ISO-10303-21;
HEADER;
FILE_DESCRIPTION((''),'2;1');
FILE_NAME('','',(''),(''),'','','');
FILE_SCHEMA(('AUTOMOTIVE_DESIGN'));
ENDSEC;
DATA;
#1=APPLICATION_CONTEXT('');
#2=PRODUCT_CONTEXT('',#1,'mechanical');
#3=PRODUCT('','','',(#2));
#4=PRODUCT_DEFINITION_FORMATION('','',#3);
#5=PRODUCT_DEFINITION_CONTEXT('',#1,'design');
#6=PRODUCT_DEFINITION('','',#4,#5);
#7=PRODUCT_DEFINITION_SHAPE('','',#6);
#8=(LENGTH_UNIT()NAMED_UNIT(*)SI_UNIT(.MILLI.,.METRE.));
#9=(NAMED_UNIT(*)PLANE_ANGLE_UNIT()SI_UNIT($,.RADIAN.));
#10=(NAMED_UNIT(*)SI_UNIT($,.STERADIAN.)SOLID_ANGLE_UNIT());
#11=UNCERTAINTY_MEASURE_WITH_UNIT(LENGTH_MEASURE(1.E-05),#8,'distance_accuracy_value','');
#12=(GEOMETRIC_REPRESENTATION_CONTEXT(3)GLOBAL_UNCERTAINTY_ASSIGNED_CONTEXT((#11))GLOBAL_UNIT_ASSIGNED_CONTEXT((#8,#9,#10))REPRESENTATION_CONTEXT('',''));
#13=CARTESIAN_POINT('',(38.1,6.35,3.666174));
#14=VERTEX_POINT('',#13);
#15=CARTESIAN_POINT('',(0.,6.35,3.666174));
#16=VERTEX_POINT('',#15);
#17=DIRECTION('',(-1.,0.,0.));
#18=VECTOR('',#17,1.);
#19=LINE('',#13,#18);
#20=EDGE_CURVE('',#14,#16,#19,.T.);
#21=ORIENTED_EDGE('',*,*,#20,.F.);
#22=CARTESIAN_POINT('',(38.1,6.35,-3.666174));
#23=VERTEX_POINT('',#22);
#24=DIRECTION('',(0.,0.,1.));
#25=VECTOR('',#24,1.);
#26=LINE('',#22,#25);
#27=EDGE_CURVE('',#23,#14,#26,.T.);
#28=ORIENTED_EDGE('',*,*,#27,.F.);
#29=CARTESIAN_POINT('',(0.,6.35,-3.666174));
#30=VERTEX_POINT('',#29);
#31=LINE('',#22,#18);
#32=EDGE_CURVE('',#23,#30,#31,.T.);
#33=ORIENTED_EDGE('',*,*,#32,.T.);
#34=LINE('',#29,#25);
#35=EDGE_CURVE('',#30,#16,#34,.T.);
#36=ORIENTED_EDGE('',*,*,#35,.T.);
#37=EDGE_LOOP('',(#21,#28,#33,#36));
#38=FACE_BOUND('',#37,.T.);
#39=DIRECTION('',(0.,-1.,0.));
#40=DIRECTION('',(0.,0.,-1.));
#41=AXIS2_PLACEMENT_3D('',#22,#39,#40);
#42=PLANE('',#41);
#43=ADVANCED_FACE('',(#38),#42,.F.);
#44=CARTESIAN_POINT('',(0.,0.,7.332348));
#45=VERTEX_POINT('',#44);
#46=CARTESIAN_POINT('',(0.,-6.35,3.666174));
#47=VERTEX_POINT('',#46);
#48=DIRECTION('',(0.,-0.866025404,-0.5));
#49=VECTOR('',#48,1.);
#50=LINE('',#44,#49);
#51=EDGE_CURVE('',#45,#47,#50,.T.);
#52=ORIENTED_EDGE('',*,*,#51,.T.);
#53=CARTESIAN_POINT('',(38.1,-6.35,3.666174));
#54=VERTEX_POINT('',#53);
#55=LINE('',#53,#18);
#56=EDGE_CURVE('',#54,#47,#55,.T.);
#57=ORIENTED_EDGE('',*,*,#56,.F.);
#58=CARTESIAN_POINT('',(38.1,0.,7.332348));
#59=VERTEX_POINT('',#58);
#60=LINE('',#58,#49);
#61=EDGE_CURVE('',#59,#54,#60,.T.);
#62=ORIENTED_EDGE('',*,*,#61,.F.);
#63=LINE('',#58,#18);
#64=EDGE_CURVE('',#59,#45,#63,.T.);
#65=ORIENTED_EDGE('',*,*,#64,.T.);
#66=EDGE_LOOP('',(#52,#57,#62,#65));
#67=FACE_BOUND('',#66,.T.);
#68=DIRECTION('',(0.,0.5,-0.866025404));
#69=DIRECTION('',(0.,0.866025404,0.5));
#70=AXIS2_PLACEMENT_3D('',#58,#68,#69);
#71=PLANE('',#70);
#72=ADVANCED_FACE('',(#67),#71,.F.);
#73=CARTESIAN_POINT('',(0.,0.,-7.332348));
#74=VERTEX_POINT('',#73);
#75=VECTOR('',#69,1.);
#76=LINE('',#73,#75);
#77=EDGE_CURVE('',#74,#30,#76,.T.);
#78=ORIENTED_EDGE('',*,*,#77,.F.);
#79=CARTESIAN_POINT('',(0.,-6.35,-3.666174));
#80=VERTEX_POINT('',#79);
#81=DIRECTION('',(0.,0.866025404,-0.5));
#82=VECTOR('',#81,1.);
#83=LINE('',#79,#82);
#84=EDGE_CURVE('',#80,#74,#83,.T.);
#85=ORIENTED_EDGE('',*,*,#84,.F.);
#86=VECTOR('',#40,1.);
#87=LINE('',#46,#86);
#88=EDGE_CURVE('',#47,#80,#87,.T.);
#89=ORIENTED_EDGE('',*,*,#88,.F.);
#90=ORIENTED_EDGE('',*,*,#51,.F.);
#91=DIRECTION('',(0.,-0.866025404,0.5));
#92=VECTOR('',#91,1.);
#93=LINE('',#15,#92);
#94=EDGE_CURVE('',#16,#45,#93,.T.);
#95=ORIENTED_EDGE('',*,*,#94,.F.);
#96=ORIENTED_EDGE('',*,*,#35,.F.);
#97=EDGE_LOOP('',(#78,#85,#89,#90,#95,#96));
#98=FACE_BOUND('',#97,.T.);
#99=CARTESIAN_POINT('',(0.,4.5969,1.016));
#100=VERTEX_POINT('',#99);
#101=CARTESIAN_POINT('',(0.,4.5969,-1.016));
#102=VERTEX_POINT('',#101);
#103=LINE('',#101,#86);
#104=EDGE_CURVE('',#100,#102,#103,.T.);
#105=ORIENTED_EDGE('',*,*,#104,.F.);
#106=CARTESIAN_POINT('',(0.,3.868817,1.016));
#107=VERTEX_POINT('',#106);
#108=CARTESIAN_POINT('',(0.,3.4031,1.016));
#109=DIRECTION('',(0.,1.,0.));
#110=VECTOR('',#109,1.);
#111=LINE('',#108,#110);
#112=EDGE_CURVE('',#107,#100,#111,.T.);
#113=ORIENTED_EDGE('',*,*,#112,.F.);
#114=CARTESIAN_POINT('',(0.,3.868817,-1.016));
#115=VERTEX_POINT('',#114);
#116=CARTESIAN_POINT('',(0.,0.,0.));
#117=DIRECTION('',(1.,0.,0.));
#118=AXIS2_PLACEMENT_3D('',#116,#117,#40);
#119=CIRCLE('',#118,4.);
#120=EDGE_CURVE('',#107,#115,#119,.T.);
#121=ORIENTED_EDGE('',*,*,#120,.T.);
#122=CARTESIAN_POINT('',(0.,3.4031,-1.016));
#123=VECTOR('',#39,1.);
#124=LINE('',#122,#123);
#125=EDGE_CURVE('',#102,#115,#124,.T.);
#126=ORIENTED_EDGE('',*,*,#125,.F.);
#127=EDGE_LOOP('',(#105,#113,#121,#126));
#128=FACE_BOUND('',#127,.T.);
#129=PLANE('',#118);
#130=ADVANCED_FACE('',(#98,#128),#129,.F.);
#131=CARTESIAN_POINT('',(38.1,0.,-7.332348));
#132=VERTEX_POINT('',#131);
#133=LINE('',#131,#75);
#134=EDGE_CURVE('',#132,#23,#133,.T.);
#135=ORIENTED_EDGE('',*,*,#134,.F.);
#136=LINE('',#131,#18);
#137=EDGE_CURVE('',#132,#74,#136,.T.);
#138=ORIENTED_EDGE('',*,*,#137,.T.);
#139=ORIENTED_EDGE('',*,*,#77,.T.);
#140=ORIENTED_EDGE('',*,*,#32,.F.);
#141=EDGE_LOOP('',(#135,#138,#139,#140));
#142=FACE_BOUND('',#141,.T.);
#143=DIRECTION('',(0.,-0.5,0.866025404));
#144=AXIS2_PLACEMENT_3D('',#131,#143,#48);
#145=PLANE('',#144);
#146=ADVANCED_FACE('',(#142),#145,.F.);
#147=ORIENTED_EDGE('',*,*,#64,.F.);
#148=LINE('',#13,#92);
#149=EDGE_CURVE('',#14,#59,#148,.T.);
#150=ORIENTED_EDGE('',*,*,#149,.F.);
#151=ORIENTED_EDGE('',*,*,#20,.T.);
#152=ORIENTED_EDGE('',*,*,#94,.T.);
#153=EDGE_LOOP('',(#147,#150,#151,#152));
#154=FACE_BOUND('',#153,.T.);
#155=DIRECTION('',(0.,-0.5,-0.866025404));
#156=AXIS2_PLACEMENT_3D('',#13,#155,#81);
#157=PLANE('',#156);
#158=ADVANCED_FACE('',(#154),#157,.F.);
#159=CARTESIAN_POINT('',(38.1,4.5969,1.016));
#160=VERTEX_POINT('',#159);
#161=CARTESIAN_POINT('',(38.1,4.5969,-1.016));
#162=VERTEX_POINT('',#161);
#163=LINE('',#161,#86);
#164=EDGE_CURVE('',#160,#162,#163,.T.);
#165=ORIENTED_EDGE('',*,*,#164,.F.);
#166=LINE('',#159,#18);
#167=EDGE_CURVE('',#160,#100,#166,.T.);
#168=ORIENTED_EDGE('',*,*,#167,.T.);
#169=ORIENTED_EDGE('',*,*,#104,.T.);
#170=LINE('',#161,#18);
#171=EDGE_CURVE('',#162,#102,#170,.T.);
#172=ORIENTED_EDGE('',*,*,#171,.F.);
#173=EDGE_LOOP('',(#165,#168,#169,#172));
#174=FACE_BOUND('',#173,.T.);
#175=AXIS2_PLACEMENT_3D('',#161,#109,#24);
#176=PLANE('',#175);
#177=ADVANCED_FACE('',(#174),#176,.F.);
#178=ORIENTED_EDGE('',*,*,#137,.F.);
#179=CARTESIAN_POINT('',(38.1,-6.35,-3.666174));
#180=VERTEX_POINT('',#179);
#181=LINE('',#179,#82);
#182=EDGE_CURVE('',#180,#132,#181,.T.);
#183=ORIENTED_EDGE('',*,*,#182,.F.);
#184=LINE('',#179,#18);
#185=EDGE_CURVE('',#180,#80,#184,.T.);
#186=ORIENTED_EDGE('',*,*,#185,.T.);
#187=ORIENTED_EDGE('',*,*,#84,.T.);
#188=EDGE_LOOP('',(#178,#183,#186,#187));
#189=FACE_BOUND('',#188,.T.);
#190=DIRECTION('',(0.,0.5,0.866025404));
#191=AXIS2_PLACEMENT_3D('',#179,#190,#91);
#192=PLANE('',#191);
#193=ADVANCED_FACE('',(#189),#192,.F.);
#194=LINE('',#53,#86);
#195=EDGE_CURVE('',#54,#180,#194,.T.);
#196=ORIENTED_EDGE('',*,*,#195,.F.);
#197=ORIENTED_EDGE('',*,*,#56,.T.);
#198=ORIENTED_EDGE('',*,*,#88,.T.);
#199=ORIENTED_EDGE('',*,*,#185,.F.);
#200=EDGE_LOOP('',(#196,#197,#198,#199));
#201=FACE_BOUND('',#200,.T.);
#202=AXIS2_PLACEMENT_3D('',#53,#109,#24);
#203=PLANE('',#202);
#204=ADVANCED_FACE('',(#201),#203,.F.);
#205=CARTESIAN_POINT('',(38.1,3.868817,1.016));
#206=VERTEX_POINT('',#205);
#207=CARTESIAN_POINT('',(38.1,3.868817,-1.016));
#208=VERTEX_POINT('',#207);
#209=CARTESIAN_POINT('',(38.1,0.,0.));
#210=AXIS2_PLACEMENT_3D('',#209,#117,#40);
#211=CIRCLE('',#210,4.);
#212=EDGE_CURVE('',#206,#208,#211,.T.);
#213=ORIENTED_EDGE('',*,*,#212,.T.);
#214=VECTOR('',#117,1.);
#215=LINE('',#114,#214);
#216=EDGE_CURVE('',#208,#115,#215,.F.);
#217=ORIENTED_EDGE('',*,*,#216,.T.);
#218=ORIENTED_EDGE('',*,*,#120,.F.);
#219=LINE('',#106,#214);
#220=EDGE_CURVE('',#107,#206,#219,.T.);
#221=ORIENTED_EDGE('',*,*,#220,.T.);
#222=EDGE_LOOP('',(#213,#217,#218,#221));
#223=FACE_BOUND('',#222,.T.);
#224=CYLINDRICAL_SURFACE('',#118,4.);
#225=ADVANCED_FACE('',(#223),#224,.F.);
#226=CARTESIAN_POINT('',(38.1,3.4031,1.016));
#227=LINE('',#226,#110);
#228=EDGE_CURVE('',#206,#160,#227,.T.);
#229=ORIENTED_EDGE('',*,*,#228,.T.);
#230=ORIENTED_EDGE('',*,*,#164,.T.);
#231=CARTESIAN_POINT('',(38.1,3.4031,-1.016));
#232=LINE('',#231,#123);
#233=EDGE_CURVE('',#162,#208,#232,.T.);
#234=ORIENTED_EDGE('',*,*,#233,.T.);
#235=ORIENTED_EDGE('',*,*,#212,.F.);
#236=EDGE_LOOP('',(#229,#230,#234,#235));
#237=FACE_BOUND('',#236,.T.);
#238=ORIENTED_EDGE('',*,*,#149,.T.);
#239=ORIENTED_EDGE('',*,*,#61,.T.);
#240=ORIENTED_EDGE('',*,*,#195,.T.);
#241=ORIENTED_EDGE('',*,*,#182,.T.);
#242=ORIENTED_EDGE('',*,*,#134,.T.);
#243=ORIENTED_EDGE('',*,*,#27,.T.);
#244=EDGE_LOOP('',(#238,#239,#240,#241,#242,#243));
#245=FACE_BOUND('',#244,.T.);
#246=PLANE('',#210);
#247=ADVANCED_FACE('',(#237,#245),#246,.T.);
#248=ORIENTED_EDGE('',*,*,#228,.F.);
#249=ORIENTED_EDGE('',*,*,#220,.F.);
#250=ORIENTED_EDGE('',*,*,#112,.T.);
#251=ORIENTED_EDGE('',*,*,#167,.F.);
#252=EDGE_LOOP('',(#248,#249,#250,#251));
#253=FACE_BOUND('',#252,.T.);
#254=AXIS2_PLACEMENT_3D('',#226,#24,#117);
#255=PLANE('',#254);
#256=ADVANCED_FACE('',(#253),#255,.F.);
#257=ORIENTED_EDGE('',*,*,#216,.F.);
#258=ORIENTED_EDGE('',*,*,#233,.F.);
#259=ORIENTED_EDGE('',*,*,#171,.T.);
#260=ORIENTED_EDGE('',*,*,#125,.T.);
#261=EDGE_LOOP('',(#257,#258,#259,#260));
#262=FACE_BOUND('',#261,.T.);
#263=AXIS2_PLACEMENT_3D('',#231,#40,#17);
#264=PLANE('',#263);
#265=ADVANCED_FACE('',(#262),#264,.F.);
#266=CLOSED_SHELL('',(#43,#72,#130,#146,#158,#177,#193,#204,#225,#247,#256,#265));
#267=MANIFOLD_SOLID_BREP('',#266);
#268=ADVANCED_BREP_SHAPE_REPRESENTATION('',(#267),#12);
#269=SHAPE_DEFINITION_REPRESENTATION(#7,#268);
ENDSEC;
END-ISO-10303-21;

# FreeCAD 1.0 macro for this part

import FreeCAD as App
import Part
import Sketcher
Q = App.Units.Quantity


def add_polygon(sketch, points):
    """Adds a closed chain of lines whose ends are joined by coincident constraints."""
    first, n = sketch.GeometryCount, len(points)
    for a, b in zip(points, points[1:] + points[:1]):
        sketch.addGeometry(Part.LineSegment(App.Vector(*a, 0), App.Vector(*b, 0)), False)
    for i in range(n):
        sketch.addConstraint(Sketcher.Constraint("Coincident", first + i, 2, first + (i + 1) % n, 1))

doc = App.newDocument("Part")
body = doc.addObject("PartDesign::Body", "Body")

sketch1 = doc.addObject("Sketcher::SketchObject", "Sketch")
body.addObject(sketch1)
sketch1.AttachmentSupport = (doc.YZ_Plane, [""])
sketch1.MapMode = "FlatFace"
add_polygon(sketch1, [(0, -7.332348), (6.35, -3.666174), (6.35, 3.666174), (0, 7.332348), (-6.35, 3.666174), (-6.35, -3.666174)])
sketch1.addConstraint([
    Sketcher.Constraint("Vertical", 1),
    Sketcher.Constraint("Vertical", 4),
    Sketcher.Constraint("Symmetric", 0, 2, 3, 2, -1, 1),
    Sketcher.Constraint("Symmetric", 2, 2, 5, 2, -1, 1),
    Sketcher.Constraint("PointOnObject", 2, 2, -2),
    Sketcher.Constraint("Parallel", 2, 5),
    Sketcher.Constraint("Horizontal", 1, 2, 3, 2),
    Sketcher.Constraint("Angle", 0, Q("30 deg")),
    Sketcher.Constraint("DistanceX", 3, 2, 1, 2, Q("0.5 in")),
    Sketcher.Constraint("DistanceY", 1, 1, 1, 2, 7.332348),
])
pad1 = doc.addObject("PartDesign::Pad", "Pad")
body.addObject(pad1)
pad1.Profile = sketch1
pad1.Length = Q("1.5 in")

sketch2 = doc.addObject("Sketcher::SketchObject", "Sketch001")
body.addObject(sketch2)
sketch2.AttachmentSupport = (doc.YZ_Plane, [""])
sketch2.MapMode = "FlatFace"
sketch2.AttachmentOffset = App.Placement(App.Vector(0, 0, 1.5 * 25.4), App.Rotation())
sketch2.addGeometry(Part.Circle(App.Vector(0, 0, 0), App.Vector(0, 0, 1), 4), False)
sketch2.addConstraint([
    Sketcher.Constraint("Coincident", 0, 3, -1, 1),
    Sketcher.Constraint("Diameter", 0, 8.0),
])
pocket1 = doc.addObject("PartDesign::Pocket", "Pocket")
body.addObject(pocket1)
pocket1.Profile = sketch2
pocket1.Type = "ThroughAll"

sketch3 = doc.addObject("Sketcher::SketchObject", "Sketch002")
body.addObject(sketch3)
sketch3.AttachmentSupport = (doc.YZ_Plane, [""])
sketch3.MapMode = "FlatFace"
add_polygon(sketch3, [(4.5969, -1.016), (3.4031, -1.016), (3.4031, 1.016), (4.5969, 1.016)])
sketch3.addConstraint([
    Sketcher.Constraint("Horizontal", 0),
    Sketcher.Constraint("Vertical", 1),
    Sketcher.Constraint("Horizontal", 2),
    Sketcher.Constraint("Vertical", 3),
    Sketcher.Constraint("DistanceY", 1, 1, 1, 2, Q("0.08 in")),
    Sketcher.Constraint("DistanceX", 0, 2, 0, 1, Q("0.047 in")),
    Sketcher.Constraint("DistanceY", 0, 2, -1, 1, Q("0.04 in")),
    Sketcher.Constraint("DistanceX", -1, 1, 0, 2, 3.4031),
])
pocket2 = doc.addObject("PartDesign::Pocket", "Pocket001")
body.addObject(pocket2)
pocket2.Profile = sketch3
pocket2.Type = "ThroughAll"
pocket2.Reversed = True

doc.recompute()
